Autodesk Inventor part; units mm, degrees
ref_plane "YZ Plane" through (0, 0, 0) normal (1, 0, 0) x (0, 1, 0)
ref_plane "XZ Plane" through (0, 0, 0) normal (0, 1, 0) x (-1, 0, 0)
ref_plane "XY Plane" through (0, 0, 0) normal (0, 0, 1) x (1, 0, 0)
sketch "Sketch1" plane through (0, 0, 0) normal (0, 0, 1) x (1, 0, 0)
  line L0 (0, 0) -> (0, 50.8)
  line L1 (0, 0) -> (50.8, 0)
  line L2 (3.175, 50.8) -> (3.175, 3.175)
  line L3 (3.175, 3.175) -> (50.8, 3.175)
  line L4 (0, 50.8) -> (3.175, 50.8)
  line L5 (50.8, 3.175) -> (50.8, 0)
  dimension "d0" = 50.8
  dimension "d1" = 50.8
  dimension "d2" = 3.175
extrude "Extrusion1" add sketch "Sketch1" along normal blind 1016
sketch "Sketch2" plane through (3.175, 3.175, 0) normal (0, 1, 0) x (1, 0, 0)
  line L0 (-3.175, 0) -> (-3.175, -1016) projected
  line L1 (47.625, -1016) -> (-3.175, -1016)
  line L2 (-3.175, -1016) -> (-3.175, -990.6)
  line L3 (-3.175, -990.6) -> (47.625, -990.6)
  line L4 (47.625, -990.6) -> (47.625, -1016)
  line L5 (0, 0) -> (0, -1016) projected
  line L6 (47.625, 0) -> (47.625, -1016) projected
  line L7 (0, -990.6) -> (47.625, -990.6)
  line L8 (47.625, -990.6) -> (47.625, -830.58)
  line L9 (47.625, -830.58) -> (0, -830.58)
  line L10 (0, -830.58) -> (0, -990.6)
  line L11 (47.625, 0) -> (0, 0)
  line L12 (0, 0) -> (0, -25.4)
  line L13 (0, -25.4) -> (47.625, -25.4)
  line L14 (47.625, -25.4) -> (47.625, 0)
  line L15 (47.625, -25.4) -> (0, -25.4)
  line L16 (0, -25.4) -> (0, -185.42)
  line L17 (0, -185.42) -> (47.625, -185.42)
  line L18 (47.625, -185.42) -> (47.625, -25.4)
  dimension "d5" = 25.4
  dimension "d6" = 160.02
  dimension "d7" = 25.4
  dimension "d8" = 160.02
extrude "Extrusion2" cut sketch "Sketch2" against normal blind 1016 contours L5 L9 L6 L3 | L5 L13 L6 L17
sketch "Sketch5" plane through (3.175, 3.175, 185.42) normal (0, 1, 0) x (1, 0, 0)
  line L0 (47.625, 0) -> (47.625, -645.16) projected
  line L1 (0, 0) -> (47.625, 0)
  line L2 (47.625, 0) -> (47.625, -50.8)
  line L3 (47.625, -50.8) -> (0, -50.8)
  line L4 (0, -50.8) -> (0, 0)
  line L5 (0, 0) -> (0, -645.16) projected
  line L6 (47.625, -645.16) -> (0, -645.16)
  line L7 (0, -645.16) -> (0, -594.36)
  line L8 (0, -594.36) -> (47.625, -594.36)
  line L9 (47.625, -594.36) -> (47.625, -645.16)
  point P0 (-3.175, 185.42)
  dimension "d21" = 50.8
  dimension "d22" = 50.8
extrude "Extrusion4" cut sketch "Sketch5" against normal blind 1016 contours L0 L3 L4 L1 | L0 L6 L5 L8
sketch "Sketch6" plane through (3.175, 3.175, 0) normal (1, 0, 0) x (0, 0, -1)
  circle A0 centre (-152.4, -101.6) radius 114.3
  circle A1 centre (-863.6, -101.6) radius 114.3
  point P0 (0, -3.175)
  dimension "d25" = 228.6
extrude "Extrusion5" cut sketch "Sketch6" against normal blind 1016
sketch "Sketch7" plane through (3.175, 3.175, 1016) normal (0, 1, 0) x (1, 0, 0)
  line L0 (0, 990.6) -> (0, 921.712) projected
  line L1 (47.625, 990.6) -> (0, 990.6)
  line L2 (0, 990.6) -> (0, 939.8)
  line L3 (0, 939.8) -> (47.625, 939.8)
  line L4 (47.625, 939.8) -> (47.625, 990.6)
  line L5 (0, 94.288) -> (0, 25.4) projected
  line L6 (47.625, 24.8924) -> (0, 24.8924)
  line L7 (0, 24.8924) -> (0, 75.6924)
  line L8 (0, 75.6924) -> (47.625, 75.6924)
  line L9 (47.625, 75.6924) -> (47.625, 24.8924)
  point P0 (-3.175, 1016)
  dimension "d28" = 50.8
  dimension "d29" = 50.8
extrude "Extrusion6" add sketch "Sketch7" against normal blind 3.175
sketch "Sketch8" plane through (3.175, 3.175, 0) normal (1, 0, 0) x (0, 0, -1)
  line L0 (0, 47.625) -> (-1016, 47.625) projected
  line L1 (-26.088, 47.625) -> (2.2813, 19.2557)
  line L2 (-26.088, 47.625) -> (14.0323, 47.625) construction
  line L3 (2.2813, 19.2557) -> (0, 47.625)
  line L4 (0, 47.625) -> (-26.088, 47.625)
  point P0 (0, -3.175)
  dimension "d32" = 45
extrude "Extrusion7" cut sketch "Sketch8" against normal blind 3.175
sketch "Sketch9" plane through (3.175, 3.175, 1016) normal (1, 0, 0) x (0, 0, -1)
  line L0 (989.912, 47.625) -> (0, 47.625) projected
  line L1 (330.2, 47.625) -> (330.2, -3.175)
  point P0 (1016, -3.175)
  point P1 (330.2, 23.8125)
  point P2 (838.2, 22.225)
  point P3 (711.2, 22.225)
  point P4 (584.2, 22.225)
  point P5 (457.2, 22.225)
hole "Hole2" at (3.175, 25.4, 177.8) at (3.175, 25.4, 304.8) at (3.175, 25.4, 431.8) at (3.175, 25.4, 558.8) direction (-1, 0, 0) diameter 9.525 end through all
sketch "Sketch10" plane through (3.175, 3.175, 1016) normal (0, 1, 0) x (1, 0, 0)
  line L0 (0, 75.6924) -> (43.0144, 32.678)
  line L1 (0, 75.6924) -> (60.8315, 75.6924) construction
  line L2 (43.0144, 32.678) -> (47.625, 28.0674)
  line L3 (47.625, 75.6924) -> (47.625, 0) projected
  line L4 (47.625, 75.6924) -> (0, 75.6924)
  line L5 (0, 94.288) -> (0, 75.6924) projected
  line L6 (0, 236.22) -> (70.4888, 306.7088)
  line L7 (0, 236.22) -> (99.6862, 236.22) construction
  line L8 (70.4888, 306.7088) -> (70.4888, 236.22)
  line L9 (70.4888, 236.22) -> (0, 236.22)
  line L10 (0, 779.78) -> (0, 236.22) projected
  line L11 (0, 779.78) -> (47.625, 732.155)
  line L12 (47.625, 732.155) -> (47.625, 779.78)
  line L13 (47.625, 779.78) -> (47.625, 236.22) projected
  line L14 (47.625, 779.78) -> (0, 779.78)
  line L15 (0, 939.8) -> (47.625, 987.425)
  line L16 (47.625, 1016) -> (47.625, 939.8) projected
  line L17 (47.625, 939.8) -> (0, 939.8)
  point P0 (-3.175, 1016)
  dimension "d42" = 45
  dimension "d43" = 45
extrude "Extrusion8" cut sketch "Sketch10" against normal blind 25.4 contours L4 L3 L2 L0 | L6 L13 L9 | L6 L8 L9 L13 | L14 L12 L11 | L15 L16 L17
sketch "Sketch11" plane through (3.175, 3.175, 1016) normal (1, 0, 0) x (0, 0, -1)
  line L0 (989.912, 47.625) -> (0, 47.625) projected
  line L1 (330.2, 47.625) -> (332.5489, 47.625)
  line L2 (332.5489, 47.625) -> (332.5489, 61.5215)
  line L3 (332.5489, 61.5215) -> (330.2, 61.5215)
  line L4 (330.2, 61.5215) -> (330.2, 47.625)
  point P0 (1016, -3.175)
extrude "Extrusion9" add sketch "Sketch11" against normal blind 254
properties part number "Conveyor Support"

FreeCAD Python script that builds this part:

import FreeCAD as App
import Part
import Sketcher

V = App.Vector
Q = App.Units.Quantity


def add_polygon(sketch, points):
    """Adds a closed chain of lines whose ends are joined by coincident constraints."""
    first, n = sketch.GeometryCount, len(points)
    for a, b in zip(points, points[1:] + points[:1]):
        sketch.addGeometry(Part.LineSegment(App.Vector(*a, 0), App.Vector(*b, 0)), False)
    for i in range(n):
        sketch.addConstraint(Sketcher.Constraint("Coincident", first + i, 2, first + (i + 1) % n, 1))

doc = App.newDocument("Part")
body = doc.addObject("PartDesign::Body", "Body")

sketch1 = body.newObject("Sketcher::SketchObject", "Sketch")
sketch1.AttachmentSupport = (doc.getObject("XY_Plane"), [""])
sketch1.MapMode = "FlatFace"
add_polygon(sketch1, [(0, 50.8), (0, 0), (50.8, 0), (50.8, 3.175), (3.175, 3.175), (3.175, 50.8)])
sketch1.addConstraint([
    Sketcher.Constraint("Vertical", 0),
    Sketcher.Constraint("Horizontal", 1),
    Sketcher.Constraint("Vertical", 2),
    Sketcher.Constraint("Horizontal", 3),
    Sketcher.Constraint("Vertical", 4),
    Sketcher.Constraint("Horizontal", 5),
    Sketcher.Constraint("Coincident", 0, 2, -1, 1),
    Sketcher.Constraint("Equal", 1, 0),
    Sketcher.Constraint("Equal", 5, 2),
    Sketcher.Constraint("DistanceX", 1, 1, 1, 2, Q("2 in")),
    Sketcher.Constraint("DistanceX", 5, 2, 5, 1, Q("0.125 in")),
])
pad1 = body.newObject("PartDesign::Pad", "Pad")
pad1.Profile = sketch1
pad1.Length = Q("40 in")

sketch2 = body.newObject("Sketcher::SketchObject", "Sketch001")
sketch2.AttachmentSupport = (doc.getObject("XZ_Plane"), [""])
sketch2.MapMode = "FlatFace"
sketch2.AttachmentOffset = App.Placement(V(0, 0, -0.125 * 25.4), App.Rotation())
add_polygon(sketch2, [(3.175, 830.58), (3.175, 990.6), (50.8, 990.6), (50.8, 830.58)])
add_polygon(sketch2, [(3.175, 25.4), (3.175, 185.42), (50.8, 185.42), (50.8, 25.4)])
sketch2.addConstraint([
    Sketcher.Constraint("Vertical", 0),
    Sketcher.Constraint("Horizontal", 1),
    Sketcher.Constraint("Vertical", 2),
    Sketcher.Constraint("Horizontal", 3),
    Sketcher.Constraint("Vertical", 4),
    Sketcher.Constraint("Horizontal", 5),
    Sketcher.Constraint("Vertical", 6),
    Sketcher.Constraint("Horizontal", 7),
    Sketcher.Constraint("Vertical", 3, 2, 4, 2),
    Sketcher.Constraint("Vertical", 2, 2, 5, 2),
    Sketcher.Constraint("Equal", 2, 4),
    Sketcher.Constraint("DistanceY", 0, 1, 0, 2, Q("6.3 in")),
    Sketcher.Constraint("DistanceY", -1, 1, 6, 2, Q("1 in")),
    Sketcher.Constraint("DistanceY", -1, 1, 0, 2, Q("39 in")),
    Sketcher.Constraint("DistanceX", -1, 1, 1, 2, Q("2 in")),
    Sketcher.Constraint("DistanceX", 1, 1, 1, 2, Q("1.875 in")),
])
pocket1 = body.newObject("PartDesign::Pocket", "Pocket")
pocket1.Profile = sketch2
pocket1.Length = Q("40 in")
pocket1.Reversed = True

sketch3 = body.newObject("Sketcher::SketchObject", "Sketch002")
sketch3.AttachmentSupport = (doc.getObject("XZ_Plane"), [""])
sketch3.MapMode = "FlatFace"
sketch3.AttachmentOffset = App.Placement(V(0, 0, -0.125 * 25.4), App.Rotation())
add_polygon(sketch3, [(50.8, 236.22), (50.8, 185.42), (3.175, 185.42), (3.175, 236.22)])
add_polygon(sketch3, [(50.8, 830.58), (50.8, 779.78), (3.175, 779.78), (3.175, 830.58)])
sketch3.addConstraint([
    Sketcher.Constraint("Vertical", 0),
    Sketcher.Constraint("Horizontal", 1),
    Sketcher.Constraint("Vertical", 2),
    Sketcher.Constraint("Horizontal", 3),
    Sketcher.Constraint("Vertical", 4),
    Sketcher.Constraint("Horizontal", 5),
    Sketcher.Constraint("Vertical", 6),
    Sketcher.Constraint("Horizontal", 7),
    Sketcher.Constraint("Vertical", 3, 2, 4, 2),
    Sketcher.Constraint("Vertical", 2, 2, 5, 2),
    Sketcher.Constraint("Equal", 2, 4),
    Sketcher.Constraint("DistanceY", 0, 2, 0, 1, Q("2 in")),
    Sketcher.Constraint("DistanceX", -1, 1, 0, 2, Q("2 in")),
    Sketcher.Constraint("DistanceY", -1, 1, 0, 2, Q("7.3 in")),
    Sketcher.Constraint("DistanceY", -1, 1, 4, 2, Q("30.7 in")),
    Sketcher.Constraint("DistanceX", 1, 2, 1, 1, Q("1.875 in")),
])
pocket2 = body.newObject("PartDesign::Pocket", "Pocket001")
pocket2.Profile = sketch3
pocket2.Length = Q("40 in")
pocket2.Reversed = True

sketch4 = body.newObject("Sketcher::SketchObject", "Sketch003")
sketch4.AttachmentSupport = (doc.getObject("YZ_Plane"), [""])
sketch4.MapMode = "FlatFace"
sketch4.AttachmentOffset = App.Placement(V(0, 0, 0.125 * 25.4), App.Rotation())
sketch4.addGeometry([
    Part.Circle(V(-98.425, 152.4, 0), V(0, 0, 1), 114.3),
    Part.Circle(V(-98.425, 863.6, 0), V(0, 0, 1), 114.3),
], False)
sketch4.addConstraint([
    Sketcher.Constraint("Equal", 0, 1),
    Sketcher.Constraint("Vertical", 0, 3, 1, 3),
    Sketcher.Constraint("Diameter", 0, Q("9 in")),
    Sketcher.Constraint("DistanceY", -1, 1, 0, 3, Q("6 in")),
    Sketcher.Constraint("DistanceY", -1, 1, 1, 3, Q("34 in")),
    Sketcher.Constraint("DistanceX", 0, 3, -1, 1, Q("3.875 in")),
])
pocket3 = body.newObject("PartDesign::Pocket", "Pocket002")
pocket3.Profile = sketch4
pocket3.Length = Q("40 in")

sketch5 = body.newObject("Sketcher::SketchObject", "Sketch004")
sketch5.AttachmentSupport = (doc.getObject("XZ_Plane"), [""])
sketch5.MapMode = "FlatFace"
sketch5.AttachmentOffset = App.Placement(V(0, 0, -0.125 * 25.4), App.Rotation())
add_polygon(sketch5, [(50.8, 25.4), (3.175, 25.4), (3.175, 76.2), (50.8, 76.2)])
add_polygon(sketch5, [(50.8, 940.3076), (3.175, 940.3076), (3.175, 991.1076), (50.8, 991.1076)])
sketch5.addConstraint([
    Sketcher.Constraint("Horizontal", 0),
    Sketcher.Constraint("Vertical", 1),
    Sketcher.Constraint("Horizontal", 2),
    Sketcher.Constraint("Vertical", 3),
    Sketcher.Constraint("Horizontal", 4),
    Sketcher.Constraint("Vertical", 5),
    Sketcher.Constraint("Horizontal", 6),
    Sketcher.Constraint("Vertical", 7),
    Sketcher.Constraint("Vertical", 1, 2, 4, 2),
    Sketcher.Constraint("Vertical", 3, 2, 6, 2),
    Sketcher.Constraint("Equal", 3, 5),
    Sketcher.Constraint("DistanceY", 1, 1, 1, 2, Q("2 in")),
    Sketcher.Constraint("DistanceX", -1, 1, 2, 2, Q("2 in")),
    Sketcher.Constraint("DistanceY", -1, 1, 0, 2, Q("1 in")),
    Sketcher.Constraint("DistanceX", 0, 2, 0, 1, Q("1.875 in")),
    Sketcher.Constraint("DistanceY", -1, 1, 4, 2, 940.3076),
])
pad2 = body.newObject("PartDesign::Pad", "Pad001")
pad2.Profile = sketch5
pad2.Length = Q("0.125 in")

sketch6 = body.newObject("Sketcher::SketchObject", "Sketch005")
sketch6.AttachmentSupport = (doc.getObject("YZ_Plane"), [""])
sketch6.MapMode = "FlatFace"
sketch6.AttachmentOffset = App.Placement(V(0, 0, 0.125 * 25.4), App.Rotation())
add_polygon(sketch6, [(22.4307, -2.2813), (50.8, 0), (50.8, 26.088)])
sketch6.addConstraint([
    Sketcher.Constraint("Vertical", 1),
    Sketcher.Constraint("PointOnObject", 0, 2, -1),
    Sketcher.Constraint("DistanceX", -1, 1, 0, 2, Q("2 in")),
    Sketcher.Constraint("Angle", 2, Q("-135 deg")),
    Sketcher.Constraint("Distance", 0, Q("1.1205 in")),
    Sketcher.Constraint("DistanceY", 1, 1, 1, 2, 26.088),
])
pocket4 = body.newObject("PartDesign::Pocket", "Pocket003")
pocket4.Profile = sketch6
pocket4.Length = Q("0.125 in")

sketch7 = body.newObject("Sketcher::SketchObject", "Sketch006")
sketch7.AttachmentSupport = (doc.getObject("YZ_Plane"), [""])
sketch7.MapMode = "FlatFace"
sketch7.AttachmentOffset = App.Placement(V(0, 0, 0.125 * 25.4), App.Rotation())
sketch7.addGeometry([
    Part.Circle(V(25.4, 177.8, 0), V(0, 0, 1), 4.7625),
    Part.Circle(V(25.4, 304.8, 0), V(0, 0, 1), 4.7625),
    Part.Circle(V(25.4, 431.8, 0), V(0, 0, 1), 4.7625),
    Part.Circle(V(25.4, 558.8, 0), V(0, 0, 1), 4.7625),
], False)
sketch7.addConstraint([
    Sketcher.Constraint("Equal", 0, 1),
    Sketcher.Constraint("Equal", 1, 2),
    Sketcher.Constraint("Equal", 2, 3),
    Sketcher.Constraint("Vertical", 0, 3, 1, 3),
    Sketcher.Constraint("Vertical", 1, 3, 2, 3),
    Sketcher.Constraint("Vertical", 2, 3, 3, 3),
    Sketcher.Constraint("Diameter", 0, Q("0.375 in")),
    Sketcher.Constraint("DistanceX", -1, 1, 0, 3, Q("1 in")),
    Sketcher.Constraint("DistanceY", -1, 1, 0, 3, Q("7 in")),
    Sketcher.Constraint("DistanceY", -1, 1, 1, 3, Q("12 in")),
    Sketcher.Constraint("DistanceY", -1, 1, 2, 3, Q("17 in")),
    Sketcher.Constraint("DistanceY", -1, 1, 3, 3, Q("22 in")),
])
doc.recompute()
hole = body.newObject("PartDesign::Hole", "Hole")
hole.Profile = sketch7
hole.ThreadType = "None"
hole.Diameter = Q("0.375 in")
hole.DepthType = "ThroughAll"

sketch8 = body.newObject("Sketcher::SketchObject", "Sketch007")
sketch8.AttachmentSupport = (doc.getObject("XZ_Plane"), [""])
sketch8.MapMode = "FlatFace"
sketch8.AttachmentOffset = App.Placement(V(0, 0, -0.125 * 25.4), App.Rotation())
add_polygon(sketch8, [(50.8, 940.3076), (3.175, 940.3076), (50.8, 987.9326)])
add_polygon(sketch8, [(3.175, 779.78), (73.6638, 779.78), (73.6638, 709.2912)])
add_polygon(sketch8, [(50.8, 236.22), (3.175, 236.22), (50.8, 283.845)])
add_polygon(sketch8, [(50.8, 28.575), (3.175, 76.2), (50.8, 76.2)])
sketch8.addConstraint([
    Sketcher.Constraint("Horizontal", 0),
    Sketcher.Constraint("Vertical", 2),
    Sketcher.Constraint("Horizontal", 3),
    Sketcher.Constraint("Vertical", 4),
    Sketcher.Constraint("Horizontal", 6),
    Sketcher.Constraint("Vertical", 8),
    Sketcher.Constraint("Horizontal", 10),
    Sketcher.Constraint("Vertical", 11),
    Sketcher.Constraint("Perpendicular", 1, 5),
    Sketcher.Constraint("Perpendicular", 5, 7),
    Sketcher.Constraint("Perpendicular", 7, 9),
    Sketcher.Constraint("Vertical", 0, 2, 5, 2),
    Sketcher.Constraint("Vertical", 5, 2, 6, 2),
    Sketcher.Constraint("Vertical", 2, 2, 7, 2),
    Sketcher.Constraint("Vertical", 6, 2, 9, 2),
    Sketcher.Constraint("Vertical", 8, 2, 10, 2),
    Sketcher.Constraint("Equal", 10, 2),
    Sketcher.Constraint("DistanceX", -1, 1, 1, 2, Q("2 in")),
    Sketcher.Constraint("DistanceY", -1, 1, 9, 2, Q("3 in")),
    Sketcher.Constraint("DistanceY", -1, 1, 3, 2, Q("30.7 in")),
    Sketcher.Constraint("DistanceY", -1, 1, 6, 2, Q("9.3 in")),
    Sketcher.Constraint("DistanceX", 0, 2, 0, 1, Q("1.875 in")),
    Sketcher.Constraint("DistanceX", 3, 1, 3, 2, 70.4888),
    Sketcher.Constraint("DistanceY", -1, 1, 0, 2, 940.3076),
])
pocket5 = body.newObject("PartDesign::Pocket", "Pocket004")
pocket5.Profile = sketch8
pocket5.Length = Q("1 in")
pocket5.Reversed = True

sketch9 = body.newObject("Sketcher::SketchObject", "Sketch008")
sketch9.AttachmentSupport = (doc.getObject("YZ_Plane"), [""])
sketch9.MapMode = "FlatFace"
sketch9.AttachmentOffset = App.Placement(V(0, 0, 0.125 * 25.4), App.Rotation())
add_polygon(sketch9, [(50.8, 685.8), (50.8, 683.4511), (64.6965, 683.4511), (64.6965, 685.8)])
sketch9.addConstraint([
    Sketcher.Constraint("Vertical", 0),
    Sketcher.Constraint("Horizontal", 1),
    Sketcher.Constraint("Vertical", 2),
    Sketcher.Constraint("Horizontal", 3),
    Sketcher.Constraint("DistanceX", -1, 1, 0, 2, Q("2 in")),
    Sketcher.Constraint("DistanceY", -1, 1, 2, 2, Q("27 in")),
    Sketcher.Constraint("DistanceX", 1, 1, 1, 2, Q("0.5471 in")),
    Sketcher.Constraint("DistanceY", 0, 2, 0, 1, 2.349),
])
pad3 = body.newObject("PartDesign::Pad", "Pad002")
pad3.Profile = sketch9
pad3.Length = Q("10 in")
pad3.Reversed = True

doc.recompute()
